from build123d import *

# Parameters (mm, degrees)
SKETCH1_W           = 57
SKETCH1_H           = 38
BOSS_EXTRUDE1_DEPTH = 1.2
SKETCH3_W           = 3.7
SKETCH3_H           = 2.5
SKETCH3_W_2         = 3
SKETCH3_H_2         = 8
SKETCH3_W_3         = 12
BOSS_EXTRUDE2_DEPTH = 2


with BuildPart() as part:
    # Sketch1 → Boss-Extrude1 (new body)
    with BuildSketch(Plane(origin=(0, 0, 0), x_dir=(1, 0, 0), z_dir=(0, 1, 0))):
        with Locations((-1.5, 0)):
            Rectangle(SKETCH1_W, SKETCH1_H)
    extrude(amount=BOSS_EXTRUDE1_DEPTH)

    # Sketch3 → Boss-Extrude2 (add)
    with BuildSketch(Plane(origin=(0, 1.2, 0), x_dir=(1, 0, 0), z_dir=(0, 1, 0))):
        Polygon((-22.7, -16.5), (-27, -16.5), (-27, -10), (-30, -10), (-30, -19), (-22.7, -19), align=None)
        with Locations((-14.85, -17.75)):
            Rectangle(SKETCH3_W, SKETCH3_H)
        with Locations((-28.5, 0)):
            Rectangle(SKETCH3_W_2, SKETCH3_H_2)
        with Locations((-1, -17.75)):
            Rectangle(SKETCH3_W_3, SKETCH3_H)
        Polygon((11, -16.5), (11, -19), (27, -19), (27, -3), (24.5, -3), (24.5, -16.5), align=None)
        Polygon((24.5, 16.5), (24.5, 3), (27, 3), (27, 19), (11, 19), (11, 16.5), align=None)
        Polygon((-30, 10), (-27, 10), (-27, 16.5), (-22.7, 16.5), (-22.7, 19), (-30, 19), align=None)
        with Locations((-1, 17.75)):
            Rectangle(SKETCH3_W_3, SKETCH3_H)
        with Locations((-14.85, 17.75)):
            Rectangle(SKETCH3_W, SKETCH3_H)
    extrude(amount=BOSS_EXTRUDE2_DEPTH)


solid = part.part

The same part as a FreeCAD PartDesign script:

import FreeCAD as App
import Part
import Sketcher
from FreeCAD import Vector
Q = App.Units.Quantity


def add_polygon(sketch, points):
    """Adds a closed chain of lines whose ends are joined by coincident constraints."""
    first, n = sketch.GeometryCount, len(points)
    for a, b in zip(points, points[1:] + points[:1]):
        sketch.addGeometry(Part.LineSegment(App.Vector(*a, 0), App.Vector(*b, 0)), False)
    for i in range(n):
        sketch.addConstraint(Sketcher.Constraint("Coincident", first + i, 2, first + (i + 1) % n, 1))

doc = App.newDocument("Part")
body = doc.addObject("PartDesign::Body", "Body")

# Sketch on XZ plane
sketch1 = doc.addObject("Sketcher::SketchObject", "Sketch")
body.addObject(sketch1)
sketch1.AttachmentSupport = (doc.XZ_Plane, [""])
sketch1.MapMode = "FlatFace"
add_polygon(sketch1, [(-30, -19), (-30, 19), (27, 19), (27, -19)])  # lines 0-3
sketch1.addConstraint([
    Sketcher.Constraint("Vertical", 0),
    Sketcher.Constraint("Horizontal", 1),
    Sketcher.Constraint("Vertical", 2),
    Sketcher.Constraint("Horizontal", 3),
    Sketcher.Constraint("DistanceX", 1, 1, 1, 2, Q("57 mm")),
    Sketcher.Constraint("DistanceY", 0, 1, 0, 2, Q("38 mm")),
    Sketcher.Constraint("DistanceX", 0, 2, -1, 1, Q("30 mm")),
    Sketcher.Constraint("DistanceY", -1, 1, 0, 2, Q("19 mm")),
])
pad1 = doc.addObject("PartDesign::Pad", "Pad")
body.addObject(pad1)
pad1.Profile = sketch1
pad1.Length = 1.2
pad1.Reversed = True

# Sketch on XZ plane
sketch2 = doc.addObject("Sketcher::SketchObject", "Sketch001")
body.addObject(sketch2)
sketch2.AttachmentSupport = (doc.XZ_Plane, [""])
sketch2.MapMode = "FlatFace"
sketch2.AttachmentOffset = App.Placement(Vector(0, 0, -1.2), App.Rotation())
add_polygon(sketch2, [(-22.7, 16.5), (-27, 16.5), (-27, 10), (-30, 10), (-30, 19), (-22.7, 19)])  # lines 0-5
add_polygon(sketch2, [(-16.7, 16.5), (-16.7, 19), (-13, 19), (-13, 16.5)])  # lines 6-9
add_polygon(sketch2, [(-30, -4), (-30, 4), (-27, 4), (-27, -4)])  # lines 10-13
add_polygon(sketch2, [(-7, 16.5), (-7, 19), (5, 19), (5, 16.5)])  # lines 14-17
add_polygon(sketch2, [(11, 16.5), (11, 19), (27, 19), (27, 3), (24.5, 3), (24.5, 16.5)])  # lines 18-23
add_polygon(sketch2, [(24.5, -16.5), (24.5, -3), (27, -3), (27, -19), (11, -19), (11, -16.5)])  # lines 24-29
add_polygon(sketch2, [(-30, -10), (-27, -10), (-27, -16.5), (-22.7, -16.5), (-22.7, -19), (-30, -19)])  # lines 30-35
add_polygon(sketch2, [(-7, -19), (-7, -16.5), (5, -16.5), (5, -19)])  # lines 36-39
add_polygon(sketch2, [(-16.7, -19), (-16.7, -16.5), (-13, -16.5), (-13, -19)])  # lines 40-43
sketch2.addConstraint([
    Sketcher.Constraint("Horizontal", 0),
    Sketcher.Constraint("Vertical", 1),
    Sketcher.Constraint("Horizontal", 2),
    Sketcher.Constraint("Vertical", 3),
    Sketcher.Constraint("Horizontal", 4),
    Sketcher.Constraint("Vertical", 5),
    Sketcher.Constraint("Vertical", 6),
    Sketcher.Constraint("Horizontal", 7),
    Sketcher.Constraint("Vertical", 8),
    Sketcher.Constraint("Horizontal", 9),
    Sketcher.Constraint("Vertical", 10),
    Sketcher.Constraint("Horizontal", 11),
    Sketcher.Constraint("Vertical", 12),
    Sketcher.Constraint("Horizontal", 13),
    Sketcher.Constraint("Vertical", 14),
    Sketcher.Constraint("Horizontal", 15),
    Sketcher.Constraint("Vertical", 16),
    Sketcher.Constraint("Horizontal", 17),
    Sketcher.Constraint("Vertical", 18),
    Sketcher.Constraint("Horizontal", 19),
    Sketcher.Constraint("Vertical", 20),
    Sketcher.Constraint("Horizontal", 21),
    Sketcher.Constraint("Vertical", 22),
    Sketcher.Constraint("Horizontal", 23),
    Sketcher.Constraint("Vertical", 24),
    Sketcher.Constraint("Horizontal", 25),
    Sketcher.Constraint("Vertical", 26),
    Sketcher.Constraint("Horizontal", 27),
    Sketcher.Constraint("Vertical", 28),
    Sketcher.Constraint("Horizontal", 29),
    Sketcher.Constraint("Horizontal", 30),
    Sketcher.Constraint("Vertical", 31),
    Sketcher.Constraint("Horizontal", 32),
    Sketcher.Constraint("Vertical", 33),
    Sketcher.Constraint("Horizontal", 34),
    Sketcher.Constraint("Vertical", 35),
    Sketcher.Constraint("Vertical", 36),
    Sketcher.Constraint("Horizontal", 37),
    Sketcher.Constraint("Vertical", 38),
    Sketcher.Constraint("Horizontal", 39),
    Sketcher.Constraint("Vertical", 40),
    Sketcher.Constraint("Horizontal", 41),
    Sketcher.Constraint("Vertical", 42),
    Sketcher.Constraint("Horizontal", 43),
    Sketcher.Constraint("Symmetric", 21, 2, 24, 2, -1),
    Sketcher.Constraint("Symmetric", 19, 2, 26, 2, -1),
    Sketcher.Constraint("Symmetric", 23, 2, 28, 2, -1),
    Sketcher.Constraint("Symmetric", 1, 2, 30, 2, -1),
    Sketcher.Constraint("Symmetric", 5, 2, 32, 2, -1),
    Sketcher.Constraint("Symmetric", 3, 2, 34, 2, -1),
    Sketcher.Constraint("Symmetric", 17, 2, 36, 2, -1),
    Sketcher.Constraint("Symmetric", 15, 2, 38, 2, -1),
    Sketcher.Constraint("Symmetric", 9, 2, 40, 2, -1),
    Sketcher.Constraint("Symmetric", 7, 2, 42, 2, -1),
    Sketcher.Constraint("Horizontal", 4, 2, 6, 2),
    Sketcher.Constraint("Horizontal", 5, 2, 8, 2),
    Sketcher.Constraint("Horizontal", 7, 2, 14, 2),
    Sketcher.Constraint("Horizontal", 9, 2, 16, 2),
    Sketcher.Constraint("Horizontal", 15, 2, 18, 2),
    Sketcher.Constraint("Horizontal", 17, 2, 22, 2),
    Sketcher.Constraint("Vertical", 3, 2, 10, 2),
    Sketcher.Constraint("Vertical", 1, 2, 11, 2),
    Sketcher.Constraint("Equal", 25, 5),
    Sketcher.Constraint("Equal", 27, 20),
    Sketcher.Constraint("DistanceX", 2, 2, 2, 1, Q("3 mm")),
    Sketcher.Constraint("DistanceX", 15, 1, 15, 2, Q("12 mm")),
    Sketcher.Constraint("DistanceX", 19, 1, 19, 2, Q("16 mm")),
    Sketcher.Constraint("DistanceY", 3, 1, 3, 2, Q("9 mm")),
    Sketcher.Constraint("DistanceY", 10, 1, 10, 2, Q("8 mm")),
    Sketcher.Constraint("DistanceX", 0, 2, 0, 1, Q("4.3 mm")),
    Sketcher.Constraint("DistanceX", 7, 1, 7, 2, Q("3.7 mm")),
    Sketcher.Constraint("DistanceX", 21, 2, 21, 1, Q("2.5 mm")),
    Sketcher.Constraint("DistanceX", 0, 2, -1, 1, Q("27 mm")),
    Sketcher.Constraint("DistanceY", -1, 1, 1, 2, Q("10 mm")),
    Sketcher.Constraint("DistanceX", 7, 2, -1, 1, Q("13 mm")),
    Sketcher.Constraint("DistanceY", -1, 1, 10, 2, Q("4 mm")),
    Sketcher.Constraint("DistanceX", 14, 2, -1, 1, Q("7 mm")),
    Sketcher.Constraint("DistanceX", -1, 1, 18, 2, Q("11 mm")),
])
pad2 = doc.addObject("PartDesign::Pad", "Pad001")
body.addObject(pad2)
pad2.Profile = sketch2
pad2.Length = 2
pad2.Reversed = True

doc.recompute()
